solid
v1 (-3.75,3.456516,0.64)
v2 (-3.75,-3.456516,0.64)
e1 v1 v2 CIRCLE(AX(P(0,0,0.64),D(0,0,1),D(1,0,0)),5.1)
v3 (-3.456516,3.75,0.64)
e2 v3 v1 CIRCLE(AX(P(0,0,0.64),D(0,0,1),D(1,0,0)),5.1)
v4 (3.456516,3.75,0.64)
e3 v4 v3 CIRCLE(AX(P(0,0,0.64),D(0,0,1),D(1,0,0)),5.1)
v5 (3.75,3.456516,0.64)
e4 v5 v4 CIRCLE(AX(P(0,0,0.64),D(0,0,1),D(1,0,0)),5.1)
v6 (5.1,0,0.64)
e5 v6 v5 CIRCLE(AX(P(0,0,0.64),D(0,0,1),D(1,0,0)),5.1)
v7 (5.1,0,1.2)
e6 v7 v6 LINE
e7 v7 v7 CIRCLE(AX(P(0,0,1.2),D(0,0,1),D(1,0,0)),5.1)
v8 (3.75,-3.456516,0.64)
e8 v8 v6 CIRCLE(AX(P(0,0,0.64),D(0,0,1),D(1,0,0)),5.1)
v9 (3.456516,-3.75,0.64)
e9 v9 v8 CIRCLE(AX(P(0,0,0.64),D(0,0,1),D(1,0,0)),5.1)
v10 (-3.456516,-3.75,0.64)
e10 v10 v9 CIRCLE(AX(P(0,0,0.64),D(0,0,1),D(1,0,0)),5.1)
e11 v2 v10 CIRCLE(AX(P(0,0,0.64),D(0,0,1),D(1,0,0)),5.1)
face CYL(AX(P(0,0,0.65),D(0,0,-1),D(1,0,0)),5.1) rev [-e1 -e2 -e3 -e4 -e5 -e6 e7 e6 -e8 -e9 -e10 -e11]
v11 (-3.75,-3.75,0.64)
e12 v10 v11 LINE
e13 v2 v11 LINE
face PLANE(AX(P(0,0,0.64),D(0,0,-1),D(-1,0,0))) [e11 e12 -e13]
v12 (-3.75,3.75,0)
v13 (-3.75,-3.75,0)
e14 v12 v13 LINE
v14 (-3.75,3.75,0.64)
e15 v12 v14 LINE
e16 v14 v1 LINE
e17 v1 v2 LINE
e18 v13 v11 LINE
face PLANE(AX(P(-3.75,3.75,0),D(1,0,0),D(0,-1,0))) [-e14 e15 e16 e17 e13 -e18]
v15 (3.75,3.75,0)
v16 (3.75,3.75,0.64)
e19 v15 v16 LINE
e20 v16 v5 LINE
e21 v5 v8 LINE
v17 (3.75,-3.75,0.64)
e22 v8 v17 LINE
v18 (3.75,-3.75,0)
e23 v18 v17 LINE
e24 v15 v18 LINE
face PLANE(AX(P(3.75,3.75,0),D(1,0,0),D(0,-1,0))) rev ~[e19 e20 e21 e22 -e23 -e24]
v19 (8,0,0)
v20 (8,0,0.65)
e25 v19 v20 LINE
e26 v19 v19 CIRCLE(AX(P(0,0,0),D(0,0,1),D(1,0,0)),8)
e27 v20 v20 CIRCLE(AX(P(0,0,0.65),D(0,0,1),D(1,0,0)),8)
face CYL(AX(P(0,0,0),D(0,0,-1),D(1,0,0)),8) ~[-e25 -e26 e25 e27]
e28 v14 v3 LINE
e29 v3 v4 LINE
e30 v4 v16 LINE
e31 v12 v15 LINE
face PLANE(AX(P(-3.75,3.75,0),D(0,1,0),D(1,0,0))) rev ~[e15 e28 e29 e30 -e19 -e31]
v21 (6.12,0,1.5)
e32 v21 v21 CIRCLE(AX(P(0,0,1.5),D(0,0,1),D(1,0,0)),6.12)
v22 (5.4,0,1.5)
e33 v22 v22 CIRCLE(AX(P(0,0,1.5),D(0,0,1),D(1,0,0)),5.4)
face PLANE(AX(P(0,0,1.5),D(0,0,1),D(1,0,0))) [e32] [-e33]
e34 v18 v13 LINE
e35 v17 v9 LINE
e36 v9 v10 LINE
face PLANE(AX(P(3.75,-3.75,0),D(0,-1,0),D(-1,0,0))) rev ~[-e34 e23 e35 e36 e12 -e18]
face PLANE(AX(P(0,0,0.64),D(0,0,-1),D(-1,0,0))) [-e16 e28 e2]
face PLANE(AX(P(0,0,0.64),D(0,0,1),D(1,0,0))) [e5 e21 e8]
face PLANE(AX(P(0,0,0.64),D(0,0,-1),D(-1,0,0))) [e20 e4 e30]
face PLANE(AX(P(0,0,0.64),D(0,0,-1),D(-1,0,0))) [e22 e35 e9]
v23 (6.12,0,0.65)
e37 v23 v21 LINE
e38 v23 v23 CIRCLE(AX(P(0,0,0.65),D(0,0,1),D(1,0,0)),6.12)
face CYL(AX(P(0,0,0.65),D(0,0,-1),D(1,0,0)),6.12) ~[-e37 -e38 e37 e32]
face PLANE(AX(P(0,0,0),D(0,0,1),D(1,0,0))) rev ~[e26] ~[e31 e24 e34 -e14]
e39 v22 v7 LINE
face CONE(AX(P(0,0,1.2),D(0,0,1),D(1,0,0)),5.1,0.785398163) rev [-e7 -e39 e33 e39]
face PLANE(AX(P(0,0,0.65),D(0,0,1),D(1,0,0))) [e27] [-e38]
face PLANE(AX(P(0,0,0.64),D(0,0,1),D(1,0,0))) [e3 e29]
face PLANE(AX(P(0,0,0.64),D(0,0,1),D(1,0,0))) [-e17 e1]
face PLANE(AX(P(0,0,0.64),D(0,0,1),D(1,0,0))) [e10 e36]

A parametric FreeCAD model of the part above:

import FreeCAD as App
import Part
import Sketcher
Q = App.Units.Quantity


def edges_at(feature, points):
    """Names of the edges that pass closest to the given points."""
    edges = feature.Shape.Edges
    near = lambda p: min(range(len(edges)), key=lambda i: edges[i].distToShape(Part.Vertex(*p))[0])
    return sorted({f"Edge{near(p) + 1}" for p in points})


def add_polygon(sketch, points):
    """Adds a closed chain of lines whose ends are joined by coincident constraints."""
    first, n = sketch.GeometryCount, len(points)
    for a, b in zip(points, points[1:] + points[:1]):
        sketch.addGeometry(Part.LineSegment(App.Vector(*a, 0), App.Vector(*b, 0)), False)
    for i in range(n):
        sketch.addConstraint(Sketcher.Constraint("Coincident", first + i, 2, first + (i + 1) % n, 1))

doc = App.newDocument("Part")
params = doc.addObject("Spreadsheet::Sheet", "Params")
for row, (alias, value) in enumerate([
    ("sketch1_diameter", "16 mm"),
    ("pad1_length", "0.65 mm"),
    ("sketch2_diameter", "10.2 mm"),
    ("sketch2_diameter2", "12.24 mm"),
    ("pad2_length", "0.85 mm"),
    ("sketch3_diameter", "10.2 mm"),
    ("pocket1_length", "0.01 mm"),
    ("sketch4_width", "7.5 mm"),
    ("pocket2_length", "0.64 mm"),
    ("chamfer_size", "0.3 mm"),
], start=1):
    params.set(f"A{row}", alias)
    params.set(f"B{row}", "=" + value)
    params.setAlias(f"B{row}", alias)

body = doc.addObject("PartDesign::Body", "Body")

# Sketch on XY plane
sketch1 = doc.addObject("Sketcher::SketchObject", "Sketch")
body.addObject(sketch1)
sketch1.AttachmentSupport = (doc.XY_Plane, [""])
sketch1.MapMode = "FlatFace"
sketch1.addGeometry(Part.Circle(App.Vector(0, 0, 0), App.Vector(0, 0, 1), 8), False)
sketch1.addConstraint([
    Sketcher.Constraint("Coincident", 0, 3, -1, 1),
    Sketcher.Constraint("Diameter", 0, Q("16 mm")),
])
sketch1.setExpression("Constraints[1]", "Params.sketch1_diameter")
pad1 = doc.addObject("PartDesign::Pad", "Pad")
body.addObject(pad1)
pad1.Profile = sketch1
pad1.setExpression("Length", "Params.pad1_length")

# Sketch on XY plane
sketch2 = doc.addObject("Sketcher::SketchObject", "Sketch001")
body.addObject(sketch2)
sketch2.AttachmentSupport = (doc.XY_Plane, [""])
sketch2.MapMode = "FlatFace"
sketch2.AttachmentOffset = App.Placement(App.Vector(0, 0, 0.65), App.Rotation())
sketch2.addGeometry([
    Part.Circle(App.Vector(0, 0, 0), App.Vector(0, 0, 1), 6),
    Part.Circle(App.Vector(0, 0, 0), App.Vector(0, 0, 1), 5),
], False)
sketch2.addConstraint([
    Sketcher.Constraint("Coincident", 0, 3, -1, 1),
    Sketcher.Constraint("Coincident", 1, 3, -1, 1),
    Sketcher.Constraint("Diameter", 1, Q("10.2 mm")),
    Sketcher.Constraint("Diameter", 0, Q("12.24 mm")),
])
sketch2.setExpression("Constraints[2]", "Params.sketch2_diameter")
sketch2.setExpression("Constraints[3]", "Params.sketch2_diameter2")
pad2 = doc.addObject("PartDesign::Pad", "Pad001")
body.addObject(pad2)
pad2.Profile = sketch2
pad2.setExpression("Length", "Params.pad2_length")

# Sketch on XY plane
sketch3 = doc.addObject("Sketcher::SketchObject", "Sketch002")
body.addObject(sketch3)
sketch3.AttachmentSupport = (doc.XY_Plane, [""])
sketch3.MapMode = "FlatFace"
sketch3.AttachmentOffset = App.Placement(App.Vector(0, 0, 0.65), App.Rotation())
sketch3.addGeometry(Part.Circle(App.Vector(0, 0, 0), App.Vector(0, 0, 1), 5), False)
sketch3.addConstraint([
    Sketcher.Constraint("Coincident", 0, 3, -1, 1),
    Sketcher.Constraint("Diameter", 0, Q("10.2 mm")),
])
sketch3.setExpression("Constraints[1]", "Params.sketch3_diameter")
pocket1 = doc.addObject("PartDesign::Pocket", "Pocket")
body.addObject(pocket1)
pocket1.Profile = sketch3
pocket1.setExpression("Length", "Params.pocket1_length")

# Sketch on XY plane
sketch4 = doc.addObject("Sketcher::SketchObject", "Sketch003")
body.addObject(sketch4)
sketch4.AttachmentSupport = (doc.XY_Plane, [""])
sketch4.MapMode = "FlatFace"
add_polygon(sketch4, [(4, -4), (4, 4), (-4, 4), (-4, -4)])  # lines 0-3
sketch4.addConstraint([
    Sketcher.Constraint("Vertical", 0),
    Sketcher.Constraint("Horizontal", 1),
    Sketcher.Constraint("Vertical", 2),
    Sketcher.Constraint("Horizontal", 3),
    Sketcher.Constraint("Symmetric", 0, 2, 2, 2, -1, 1),
    Sketcher.Constraint("Equal", 3, 0),
    Sketcher.Constraint("DistanceX", 1, 2, 1, 1, Q("7.5 mm")),
])
sketch4.setExpression("Constraints[10]", "Params.sketch4_width")
pocket2 = doc.addObject("PartDesign::Pocket", "Pocket001")
body.addObject(pocket2)
pocket2.Profile = sketch4
pocket2.setExpression("Length", "Params.pocket2_length")
pocket2.Reversed = True
doc.recompute()

chamfer = doc.addObject("PartDesign::Chamfer", "Chamfer")
body.addObject(chamfer)
chamfer.Base = (pocket2, edges_at(pocket2, [(-5.1, 0, 1.5)]))
chamfer.setExpression("Size", "Params.chamfer_size")

doc.recompute()
